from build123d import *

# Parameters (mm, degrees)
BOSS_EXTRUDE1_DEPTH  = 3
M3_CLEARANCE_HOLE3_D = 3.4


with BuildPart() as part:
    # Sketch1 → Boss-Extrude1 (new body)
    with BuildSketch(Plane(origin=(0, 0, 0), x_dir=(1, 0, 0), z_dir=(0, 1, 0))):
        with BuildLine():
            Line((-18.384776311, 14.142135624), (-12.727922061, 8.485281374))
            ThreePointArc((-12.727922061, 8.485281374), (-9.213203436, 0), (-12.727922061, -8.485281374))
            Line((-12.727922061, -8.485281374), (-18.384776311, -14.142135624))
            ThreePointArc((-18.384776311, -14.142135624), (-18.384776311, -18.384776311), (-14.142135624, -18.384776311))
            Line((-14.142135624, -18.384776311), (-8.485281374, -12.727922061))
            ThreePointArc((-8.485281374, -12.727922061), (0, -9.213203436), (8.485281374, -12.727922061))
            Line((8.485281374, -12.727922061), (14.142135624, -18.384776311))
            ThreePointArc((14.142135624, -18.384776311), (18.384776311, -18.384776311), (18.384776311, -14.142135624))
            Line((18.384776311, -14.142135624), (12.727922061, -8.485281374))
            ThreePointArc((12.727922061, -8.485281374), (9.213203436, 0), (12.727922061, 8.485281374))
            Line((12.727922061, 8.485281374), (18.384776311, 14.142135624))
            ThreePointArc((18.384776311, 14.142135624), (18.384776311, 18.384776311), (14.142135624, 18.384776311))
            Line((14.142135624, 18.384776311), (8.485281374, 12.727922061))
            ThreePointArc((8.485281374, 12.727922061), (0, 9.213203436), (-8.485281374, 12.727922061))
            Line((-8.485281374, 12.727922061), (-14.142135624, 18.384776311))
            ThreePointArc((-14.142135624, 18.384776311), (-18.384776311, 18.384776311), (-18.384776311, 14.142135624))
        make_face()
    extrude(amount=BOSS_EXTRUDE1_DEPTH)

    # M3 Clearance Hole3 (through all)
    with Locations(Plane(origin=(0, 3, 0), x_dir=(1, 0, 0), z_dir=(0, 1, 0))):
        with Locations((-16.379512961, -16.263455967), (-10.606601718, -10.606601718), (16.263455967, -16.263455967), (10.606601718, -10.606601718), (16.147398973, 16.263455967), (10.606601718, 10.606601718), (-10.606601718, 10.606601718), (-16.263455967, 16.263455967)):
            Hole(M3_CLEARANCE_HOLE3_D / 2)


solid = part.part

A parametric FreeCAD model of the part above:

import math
import FreeCAD as App
import Part
import Sketcher
Q = App.Units.Quantity

doc = App.newDocument("Part")
body = doc.addObject("PartDesign::Body", "Body")

# Sketch on XZ plane
sketch1 = doc.addObject("Sketcher::SketchObject", "Sketch")
body.addObject(sketch1)
sketch1.AttachmentSupport = (doc.XZ_Plane, [""])
sketch1.MapMode = "FlatFace"
sketch1.addGeometry(Part.LineSegment(App.Vector(-18.4, -14.1, 0), App.Vector(-12.7, -8.5, 0)), False)
sketch1.addGeometry(Part.ArcOfCircle(Part.Circle(App.Vector(-21.2, 0, 0), App.Vector(0, 0, 1), 12), math.radians(-45), math.radians(45)), False)
sketch1.addGeometry(Part.LineSegment(App.Vector(-12.7, 8.5, 0), App.Vector(-18.4, 14.1, 0)), False)
sketch1.addGeometry(Part.ArcOfCircle(Part.Circle(App.Vector(-16.3, 16.3, 0), App.Vector(0, 0, 1), 3), math.radians(45), math.radians(225)), False)
sketch1.addGeometry(Part.LineSegment(App.Vector(-14.1, 18.4, 0), App.Vector(-8.5, 12.7, 0)), False)
sketch1.addGeometry(Part.ArcOfCircle(Part.Circle(App.Vector(0, 21.2, 0), App.Vector(0, 0, 1), 12), math.radians(-135), math.radians(-45)), False)
sketch1.addGeometry(Part.LineSegment(App.Vector(8.5, 12.7, 0), App.Vector(14.1, 18.4, 0)), False)
sketch1.addGeometry(Part.ArcOfCircle(Part.Circle(App.Vector(16.3, 16.3, 0), App.Vector(0, 0, 1), 3), math.radians(-45), math.radians(135)), False)
sketch1.addGeometry(Part.LineSegment(App.Vector(18.4, 14.1, 0), App.Vector(12.7, 8.5, 0)), False)
sketch1.addGeometry(Part.ArcOfCircle(Part.Circle(App.Vector(21.2, 0, 0), App.Vector(0, 0, 1), 12), math.radians(135), math.radians(225)), False)
sketch1.addGeometry(Part.LineSegment(App.Vector(12.7, -8.5, 0), App.Vector(18.4, -14.1, 0)), False)
sketch1.addGeometry(Part.ArcOfCircle(Part.Circle(App.Vector(16.3, -16.3, 0), App.Vector(0, 0, 1), 3), math.radians(-135), math.radians(45)), False)
sketch1.addGeometry(Part.LineSegment(App.Vector(14.1, -18.4, 0), App.Vector(8.5, -12.7, 0)), False)
sketch1.addGeometry(Part.ArcOfCircle(Part.Circle(App.Vector(0, -21.2, 0), App.Vector(0, 0, 1), 12), math.radians(45), math.radians(135)), False)
sketch1.addGeometry(Part.LineSegment(App.Vector(-8.5, -12.7, 0), App.Vector(-14.1, -18.4, 0)), False)
sketch1.addGeometry(Part.ArcOfCircle(Part.Circle(App.Vector(-16.3, -16.3, 0), App.Vector(0, 0, 1), 3), math.radians(135), math.radians(315)), False)
sketch1.addConstraint(Sketcher.Constraint("Tangent", 0, 2, 1, 1))
sketch1.addConstraint(Sketcher.Constraint("Tangent", 1, 2, 2, 1))
sketch1.addConstraint(Sketcher.Constraint("Tangent", 2, 2, 3, 2))
sketch1.addConstraint(Sketcher.Constraint("Tangent", 3, 1, 4, 1))
sketch1.addConstraint(Sketcher.Constraint("Tangent", 4, 2, 5, 1))
sketch1.addConstraint(Sketcher.Constraint("Tangent", 5, 2, 6, 1))
sketch1.addConstraint(Sketcher.Constraint("Tangent", 6, 2, 7, 2))
sketch1.addConstraint(Sketcher.Constraint("Tangent", 7, 1, 8, 1))
sketch1.addConstraint(Sketcher.Constraint("Tangent", 8, 2, 9, 1))
sketch1.addConstraint(Sketcher.Constraint("Tangent", 9, 2, 10, 1))
sketch1.addConstraint(Sketcher.Constraint("Tangent", 10, 2, 11, 2))
sketch1.addConstraint(Sketcher.Constraint("Tangent", 11, 1, 12, 1))
sketch1.addConstraint(Sketcher.Constraint("Tangent", 12, 2, 13, 1))
sketch1.addConstraint(Sketcher.Constraint("Tangent", 13, 2, 14, 1))
sketch1.addConstraint(Sketcher.Constraint("Tangent", 14, 2, 15, 2))
sketch1.addConstraint(Sketcher.Constraint("Tangent", 15, 1, 0, 1))
sketch1.addConstraint(Sketcher.Constraint("Equal", 1, 5))
sketch1.addConstraint(Sketcher.Constraint("Equal", 3, 7))
sketch1.addConstraint(Sketcher.Constraint("Equal", 5, 9))
sketch1.addConstraint(Sketcher.Constraint("Equal", 7, 11))
sketch1.addConstraint(Sketcher.Constraint("Equal", 9, 13))
sketch1.addConstraint(Sketcher.Constraint("Equal", 11, 15))
sketch1.addConstraint(Sketcher.Constraint("Symmetric", 1, 3, 9, 3, -1, 1))
sketch1.addConstraint(Sketcher.Constraint("Symmetric", 3, 3, 11, 3, -1, 1))
sketch1.addConstraint(Sketcher.Constraint("Symmetric", 5, 3, 13, 3, -1, 1))
sketch1.addConstraint(Sketcher.Constraint("Symmetric", 7, 3, 15, 3, -1, 1))
sketch1.addConstraint(Sketcher.Constraint("Symmetric", 3, 3, 7, 3, -2))
sketch1.addConstraint(Sketcher.Constraint("PointOnObject", 1, 3, -1))
sketch1.addConstraint(Sketcher.Constraint("PointOnObject", 5, 3, -2))
sketch1.addConstraint(Sketcher.Constraint("Perpendicular", 0, 2))
sketch1.addConstraint(Sketcher.Constraint("Parallel", 2, 4))
sketch1.addConstraint(Sketcher.Constraint("Equal", 2, 4))
sketch1.addConstraint(Sketcher.Constraint("Radius", 1, Q("12 mm")))
sketch1.addConstraint(Sketcher.Constraint("Radius", 3, Q("3 mm")))
sketch1.addConstraint(Sketcher.Constraint("Distance", 0, Q("8 mm")))
pad1 = doc.addObject("PartDesign::Pad", "Pad")
body.addObject(pad1)
pad1.Profile = sketch1
pad1.Length = 3
pad1.Reversed = True

# Sketch on XZ plane
sketch2 = doc.addObject("Sketcher::SketchObject", "Sketch001")
body.addObject(sketch2)
sketch2.AttachmentSupport = (doc.XZ_Plane, [""])
sketch2.MapMode = "FlatFace"
sketch2.AttachmentOffset = App.Placement(App.Vector(0, 0, -3), App.Rotation())
sketch2.addGeometry(Part.Circle(App.Vector(-16.4, 16.3, 0), App.Vector(0, 0, 1), 1.7), False)
sketch2.addGeometry(Part.Circle(App.Vector(-10.6, 10.6, 0), App.Vector(0, 0, 1), 1.7), False)
sketch2.addGeometry(Part.Circle(App.Vector(16.3, 16.3, 0), App.Vector(0, 0, 1), 1.7), False)
sketch2.addGeometry(Part.Circle(App.Vector(10.6, 10.6, 0), App.Vector(0, 0, 1), 1.7), False)
sketch2.addGeometry(Part.Circle(App.Vector(16.1, -16.3, 0), App.Vector(0, 0, 1), 1.7), False)
sketch2.addGeometry(Part.Circle(App.Vector(10.6, -10.6, 0), App.Vector(0, 0, 1), 1.7), False)
sketch2.addGeometry(Part.Circle(App.Vector(-10.6, -10.6, 0), App.Vector(0, 0, 1), 1.7), False)
sketch2.addGeometry(Part.Circle(App.Vector(-16.3, -16.3, 0), App.Vector(0, 0, 1), 1.7), False)
sketch2.addConstraint(Sketcher.Constraint("Equal", 0, 1))
sketch2.addConstraint(Sketcher.Constraint("Equal", 1, 2))
sketch2.addConstraint(Sketcher.Constraint("Equal", 2, 3))
sketch2.addConstraint(Sketcher.Constraint("Equal", 3, 4))
sketch2.addConstraint(Sketcher.Constraint("Equal", 4, 5))
sketch2.addConstraint(Sketcher.Constraint("Equal", 5, 6))
sketch2.addConstraint(Sketcher.Constraint("Equal", 6, 7))
sketch2.addConstraint(Sketcher.Constraint("Symmetric", 1, 3, 5, 3, -1, 1))
sketch2.addConstraint(Sketcher.Constraint("Symmetric", 3, 3, 6, 3, -1, 1))
sketch2.addConstraint(Sketcher.Constraint("Symmetric", 2, 3, 7, 3, -1, 1))
sketch2.addConstraint(Sketcher.Constraint("Symmetric", 1, 3, 3, 3, -2))
sketch2.addConstraint(Sketcher.Constraint("Horizontal", 0, 3, 2, 3))
sketch2.addConstraint(Sketcher.Constraint("Horizontal", 4, 3, 7, 3))
sketch2.addConstraint(Sketcher.Constraint("Diameter", 0, Q("3.4 mm")))
sketch2.addConstraint(Sketcher.Constraint("DistanceX", 1, 3, 4, 3, Q("26.754001 mm")))
sketch2.addConstraint(Sketcher.Constraint("DistanceX", 1, 3, -1, 1, Q("10.606602 mm")))
sketch2.addConstraint(Sketcher.Constraint("DistanceY", -1, 1, 1, 3, Q("10.606602 mm")))
sketch2.addConstraint(Sketcher.Constraint("DistanceX", 0, 3, 1, 3, Q("5.772911 mm")))
sketch2.addConstraint(Sketcher.Constraint("DistanceX", 0, 3, 2, 3, Q("32.642969 mm")))
sketch2.addConstraint(Sketcher.Constraint("DistanceY", 4, 3, 2, 3, Q("32.526912 mm")))
doc.recompute()
hole = doc.addObject("PartDesign::Hole", "Hole")
body.addObject(hole)
hole.Profile = sketch2
hole.ThreadType = "None"
hole.Diameter = 3.4
hole.DepthType = "ThroughAll"
hole.Reversed = True

doc.recompute()
